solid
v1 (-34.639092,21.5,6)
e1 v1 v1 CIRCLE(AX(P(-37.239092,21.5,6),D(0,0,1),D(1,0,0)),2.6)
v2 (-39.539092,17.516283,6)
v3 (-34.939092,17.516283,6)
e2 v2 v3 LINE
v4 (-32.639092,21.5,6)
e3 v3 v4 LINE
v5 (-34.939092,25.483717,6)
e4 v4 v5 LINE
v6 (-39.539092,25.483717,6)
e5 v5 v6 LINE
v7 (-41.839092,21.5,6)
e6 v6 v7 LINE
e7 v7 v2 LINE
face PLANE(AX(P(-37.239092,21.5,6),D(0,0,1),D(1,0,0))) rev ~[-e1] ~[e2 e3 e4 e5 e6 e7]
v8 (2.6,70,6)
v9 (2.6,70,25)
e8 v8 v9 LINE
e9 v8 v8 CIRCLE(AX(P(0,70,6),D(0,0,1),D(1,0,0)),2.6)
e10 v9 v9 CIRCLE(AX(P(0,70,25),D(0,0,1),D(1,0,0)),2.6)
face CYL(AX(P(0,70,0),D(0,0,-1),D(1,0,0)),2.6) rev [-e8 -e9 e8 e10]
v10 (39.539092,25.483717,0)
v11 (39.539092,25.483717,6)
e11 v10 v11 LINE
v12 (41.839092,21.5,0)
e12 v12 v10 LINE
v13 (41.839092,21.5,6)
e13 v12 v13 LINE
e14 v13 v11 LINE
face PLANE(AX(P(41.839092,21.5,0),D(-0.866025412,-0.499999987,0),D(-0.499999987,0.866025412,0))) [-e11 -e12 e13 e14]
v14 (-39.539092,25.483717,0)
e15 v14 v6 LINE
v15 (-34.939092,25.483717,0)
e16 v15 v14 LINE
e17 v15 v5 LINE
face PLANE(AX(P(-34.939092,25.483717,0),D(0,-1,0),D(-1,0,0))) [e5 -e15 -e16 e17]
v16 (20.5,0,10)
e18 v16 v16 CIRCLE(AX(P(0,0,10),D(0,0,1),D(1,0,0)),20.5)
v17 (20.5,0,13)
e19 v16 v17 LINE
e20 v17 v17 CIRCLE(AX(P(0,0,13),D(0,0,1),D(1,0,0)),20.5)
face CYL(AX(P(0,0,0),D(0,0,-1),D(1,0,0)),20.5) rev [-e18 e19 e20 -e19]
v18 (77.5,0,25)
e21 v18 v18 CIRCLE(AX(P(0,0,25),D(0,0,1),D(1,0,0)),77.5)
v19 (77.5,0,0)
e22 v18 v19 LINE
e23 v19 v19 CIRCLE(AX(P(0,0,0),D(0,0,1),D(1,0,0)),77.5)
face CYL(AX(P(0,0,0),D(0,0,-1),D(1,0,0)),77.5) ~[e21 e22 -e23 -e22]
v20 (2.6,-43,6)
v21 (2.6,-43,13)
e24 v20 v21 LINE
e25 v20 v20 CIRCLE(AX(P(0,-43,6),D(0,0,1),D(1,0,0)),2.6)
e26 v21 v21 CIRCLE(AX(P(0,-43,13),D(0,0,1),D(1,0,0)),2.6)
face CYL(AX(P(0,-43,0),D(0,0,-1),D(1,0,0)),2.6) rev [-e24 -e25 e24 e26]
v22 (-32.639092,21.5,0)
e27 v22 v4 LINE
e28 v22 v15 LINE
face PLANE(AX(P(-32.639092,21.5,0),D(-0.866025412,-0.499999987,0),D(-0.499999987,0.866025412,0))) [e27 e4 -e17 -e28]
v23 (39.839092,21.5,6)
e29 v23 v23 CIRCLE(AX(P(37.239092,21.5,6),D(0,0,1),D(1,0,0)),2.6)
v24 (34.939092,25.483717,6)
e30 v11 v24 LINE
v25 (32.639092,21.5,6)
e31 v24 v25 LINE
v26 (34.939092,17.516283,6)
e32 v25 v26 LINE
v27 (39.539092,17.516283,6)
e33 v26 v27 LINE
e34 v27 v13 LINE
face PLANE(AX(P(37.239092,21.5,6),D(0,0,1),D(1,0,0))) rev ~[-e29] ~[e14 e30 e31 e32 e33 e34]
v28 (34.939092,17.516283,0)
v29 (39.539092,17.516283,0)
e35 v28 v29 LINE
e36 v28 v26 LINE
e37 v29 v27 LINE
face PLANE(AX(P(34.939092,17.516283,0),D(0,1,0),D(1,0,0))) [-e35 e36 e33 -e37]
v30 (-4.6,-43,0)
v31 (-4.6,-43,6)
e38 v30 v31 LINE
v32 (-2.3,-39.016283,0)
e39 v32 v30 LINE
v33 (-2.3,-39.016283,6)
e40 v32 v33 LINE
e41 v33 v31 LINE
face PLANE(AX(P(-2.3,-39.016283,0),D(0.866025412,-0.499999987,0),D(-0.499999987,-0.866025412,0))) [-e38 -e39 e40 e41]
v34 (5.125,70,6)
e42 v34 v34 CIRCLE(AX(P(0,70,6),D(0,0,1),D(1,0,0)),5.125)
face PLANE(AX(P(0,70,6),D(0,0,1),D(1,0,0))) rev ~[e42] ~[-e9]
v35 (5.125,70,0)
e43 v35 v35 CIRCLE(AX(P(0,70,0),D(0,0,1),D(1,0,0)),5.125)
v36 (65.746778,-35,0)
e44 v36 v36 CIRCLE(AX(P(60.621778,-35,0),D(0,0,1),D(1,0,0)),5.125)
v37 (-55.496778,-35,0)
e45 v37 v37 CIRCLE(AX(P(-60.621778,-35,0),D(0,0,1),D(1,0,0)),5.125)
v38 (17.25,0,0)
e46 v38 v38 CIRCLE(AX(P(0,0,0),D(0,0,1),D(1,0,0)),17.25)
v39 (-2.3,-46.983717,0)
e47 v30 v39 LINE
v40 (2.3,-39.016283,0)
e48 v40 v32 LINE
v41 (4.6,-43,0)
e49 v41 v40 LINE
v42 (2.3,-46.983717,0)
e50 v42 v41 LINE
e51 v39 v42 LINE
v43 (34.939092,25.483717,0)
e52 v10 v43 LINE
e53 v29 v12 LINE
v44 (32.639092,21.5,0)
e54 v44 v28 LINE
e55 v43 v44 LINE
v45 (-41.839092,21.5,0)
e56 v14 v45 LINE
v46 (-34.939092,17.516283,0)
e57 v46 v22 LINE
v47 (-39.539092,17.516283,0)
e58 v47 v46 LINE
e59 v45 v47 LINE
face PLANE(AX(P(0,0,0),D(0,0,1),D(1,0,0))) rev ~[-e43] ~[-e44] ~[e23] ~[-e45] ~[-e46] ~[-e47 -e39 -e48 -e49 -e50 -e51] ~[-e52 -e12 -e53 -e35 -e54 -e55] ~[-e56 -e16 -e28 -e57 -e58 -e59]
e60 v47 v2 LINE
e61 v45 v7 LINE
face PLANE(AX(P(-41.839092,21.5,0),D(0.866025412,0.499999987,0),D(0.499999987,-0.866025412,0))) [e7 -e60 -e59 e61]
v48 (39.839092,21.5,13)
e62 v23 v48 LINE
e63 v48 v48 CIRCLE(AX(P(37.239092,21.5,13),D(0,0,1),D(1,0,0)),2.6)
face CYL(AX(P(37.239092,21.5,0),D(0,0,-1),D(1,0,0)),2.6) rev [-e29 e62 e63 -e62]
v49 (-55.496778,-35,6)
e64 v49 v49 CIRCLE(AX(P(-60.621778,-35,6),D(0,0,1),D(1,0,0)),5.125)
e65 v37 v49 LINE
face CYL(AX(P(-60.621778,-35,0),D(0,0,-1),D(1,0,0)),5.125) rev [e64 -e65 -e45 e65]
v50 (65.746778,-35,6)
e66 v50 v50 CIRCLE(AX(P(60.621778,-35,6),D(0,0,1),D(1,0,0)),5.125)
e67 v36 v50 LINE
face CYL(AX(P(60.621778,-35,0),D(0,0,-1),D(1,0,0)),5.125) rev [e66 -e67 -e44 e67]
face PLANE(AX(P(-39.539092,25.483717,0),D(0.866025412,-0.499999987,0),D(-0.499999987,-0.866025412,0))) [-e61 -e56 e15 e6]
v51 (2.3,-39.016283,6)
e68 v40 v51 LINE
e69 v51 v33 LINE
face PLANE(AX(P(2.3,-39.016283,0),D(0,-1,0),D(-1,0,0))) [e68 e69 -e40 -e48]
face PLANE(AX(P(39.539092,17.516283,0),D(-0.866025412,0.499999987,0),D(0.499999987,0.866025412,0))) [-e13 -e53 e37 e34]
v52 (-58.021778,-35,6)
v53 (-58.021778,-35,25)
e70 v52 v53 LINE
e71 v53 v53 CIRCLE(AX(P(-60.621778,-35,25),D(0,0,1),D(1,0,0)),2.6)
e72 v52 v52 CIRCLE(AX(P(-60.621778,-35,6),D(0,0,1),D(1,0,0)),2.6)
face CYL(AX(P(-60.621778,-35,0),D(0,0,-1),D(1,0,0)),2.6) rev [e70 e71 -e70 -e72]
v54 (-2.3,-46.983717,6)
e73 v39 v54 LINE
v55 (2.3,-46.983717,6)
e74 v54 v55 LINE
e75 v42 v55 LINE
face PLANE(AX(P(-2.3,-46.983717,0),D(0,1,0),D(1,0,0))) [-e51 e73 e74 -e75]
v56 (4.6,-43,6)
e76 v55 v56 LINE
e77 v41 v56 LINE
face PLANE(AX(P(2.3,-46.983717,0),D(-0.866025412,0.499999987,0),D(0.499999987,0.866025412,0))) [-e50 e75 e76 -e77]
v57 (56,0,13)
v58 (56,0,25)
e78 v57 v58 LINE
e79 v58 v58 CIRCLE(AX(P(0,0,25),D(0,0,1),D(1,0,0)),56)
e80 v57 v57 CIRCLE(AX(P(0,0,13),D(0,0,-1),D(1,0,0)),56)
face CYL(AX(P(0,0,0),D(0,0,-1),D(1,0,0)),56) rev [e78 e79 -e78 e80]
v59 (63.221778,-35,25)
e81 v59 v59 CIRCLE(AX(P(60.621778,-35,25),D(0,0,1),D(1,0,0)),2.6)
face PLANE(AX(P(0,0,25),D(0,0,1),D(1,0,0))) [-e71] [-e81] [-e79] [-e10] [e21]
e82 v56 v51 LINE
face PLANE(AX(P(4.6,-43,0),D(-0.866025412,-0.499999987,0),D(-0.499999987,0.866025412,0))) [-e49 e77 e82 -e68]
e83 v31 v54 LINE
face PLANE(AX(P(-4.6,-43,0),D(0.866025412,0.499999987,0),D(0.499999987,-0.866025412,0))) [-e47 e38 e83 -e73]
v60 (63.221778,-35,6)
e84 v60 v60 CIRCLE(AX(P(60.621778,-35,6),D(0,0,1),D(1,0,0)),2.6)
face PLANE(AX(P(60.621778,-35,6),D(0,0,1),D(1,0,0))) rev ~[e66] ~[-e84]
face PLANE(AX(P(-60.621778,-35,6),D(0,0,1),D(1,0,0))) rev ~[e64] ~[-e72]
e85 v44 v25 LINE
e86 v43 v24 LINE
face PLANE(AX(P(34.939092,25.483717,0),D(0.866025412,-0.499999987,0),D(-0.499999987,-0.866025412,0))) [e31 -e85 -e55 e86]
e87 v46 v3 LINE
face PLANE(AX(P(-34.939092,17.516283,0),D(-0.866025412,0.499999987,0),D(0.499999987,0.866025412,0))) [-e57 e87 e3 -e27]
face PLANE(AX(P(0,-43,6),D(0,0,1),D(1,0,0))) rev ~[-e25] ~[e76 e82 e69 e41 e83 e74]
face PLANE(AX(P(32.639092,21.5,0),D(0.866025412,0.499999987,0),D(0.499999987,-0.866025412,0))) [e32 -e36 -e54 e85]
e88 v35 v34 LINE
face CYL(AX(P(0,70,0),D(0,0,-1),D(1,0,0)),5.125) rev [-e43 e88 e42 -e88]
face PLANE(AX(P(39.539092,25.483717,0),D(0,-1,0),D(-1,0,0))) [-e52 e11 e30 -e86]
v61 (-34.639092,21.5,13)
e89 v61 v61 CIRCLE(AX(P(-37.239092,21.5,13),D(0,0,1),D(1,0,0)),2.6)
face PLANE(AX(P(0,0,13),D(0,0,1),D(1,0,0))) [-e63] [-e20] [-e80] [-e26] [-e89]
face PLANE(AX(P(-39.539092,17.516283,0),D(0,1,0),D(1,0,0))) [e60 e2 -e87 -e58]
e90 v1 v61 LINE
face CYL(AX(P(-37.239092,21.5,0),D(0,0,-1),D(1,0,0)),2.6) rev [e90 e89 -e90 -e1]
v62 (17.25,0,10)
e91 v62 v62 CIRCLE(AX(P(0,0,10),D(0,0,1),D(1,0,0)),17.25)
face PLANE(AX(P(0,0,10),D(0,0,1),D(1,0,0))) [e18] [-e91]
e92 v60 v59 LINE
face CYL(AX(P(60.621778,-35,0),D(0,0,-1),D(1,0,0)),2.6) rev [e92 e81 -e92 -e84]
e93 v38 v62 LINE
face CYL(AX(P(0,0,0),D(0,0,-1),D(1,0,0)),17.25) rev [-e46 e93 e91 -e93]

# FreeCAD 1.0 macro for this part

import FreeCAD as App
import Part
import Sketcher
from FreeCAD import Vector
Q = App.Units.Quantity


def add_polygon(sketch, points):
    """Adds a closed chain of lines whose ends are joined by coincident constraints."""
    first, n = sketch.GeometryCount, len(points)
    for a, b in zip(points, points[1:] + points[:1]):
        sketch.addGeometry(Part.LineSegment(App.Vector(*a, 0), App.Vector(*b, 0)), False)
    for i in range(n):
        sketch.addConstraint(Sketcher.Constraint("Coincident", first + i, 2, first + (i + 1) % n, 1))

doc = App.newDocument("Part")
params = doc.addObject("Spreadsheet::Sheet", "Params")
for row, (alias, value) in enumerate([
    ("sketch1_diameter", "155 mm"),
    ("sketch1_diameter2", "41 mm"),
    ("sketch1_diameter3", "5.2 mm"),
    ("pad1_length", "13 mm"),
    ("sketch2_diameter", "155 mm"),
    ("sketch2_diameter2", "112 mm"),
    ("sketch2_diameter3", "5.2 mm"),
    ("pad2_length", "25 mm"),
    ("sketch3_diameter", "41 mm"),
    ("sketch3_diameter2", "34.5 mm"),
    ("pad3_length", "10 mm"),
    ("sketch4_diameter", "5.2 mm"),
    ("sketch4_diameter2", "10.25 mm"),
    ("pocket1_length", "6 mm"),
    ("sketch5_diameter", "5.2 mm"),
    ("sketch5_width", "4.6 mm"),
    ("sketch5_length", "4.6 mm"),
    ("pocket2_length", "6 mm"),
], start=1):
    params.set(f"A{row}", alias)
    params.set(f"B{row}", "=" + value)
    params.setAlias(f"B{row}", alias)

body = doc.addObject("PartDesign::Body", "Body")

# Sketch on XY plane
sketch1 = body.newObject("Sketcher::SketchObject", "Sketch")
sketch1.AttachmentSupport = (doc.getObject("XY_Plane"), [""])
sketch1.MapMode = "FlatFace"
sketch1.addGeometry([
    Part.Circle(Vector(0, 0, 0), Vector(0, 0, 1), 77.5),  # 0
    Part.Circle(Vector(-60.6, -35, 0), Vector(0, 0, 1), 2.6),  # 1
    Part.Circle(Vector(0, -43, 0), Vector(0, 0, 1), 2.6),  # 2
    Part.Circle(Vector(60.6, -35, 0), Vector(0, 0, 1), 2.6),  # 3
    Part.Circle(Vector(0, 0, 0), Vector(0, 0, 1), 20.5),  # 4
    Part.Circle(Vector(-37.2, 21.5, 0), Vector(0, 0, 1), 2.6),  # 5
    Part.Circle(Vector(37.2, 21.5, 0), Vector(0, 0, 1), 2.6),  # 6
    Part.Circle(Vector(0, 70, 0), Vector(0, 0, 1), 2.6),  # 7
], False)
sketch1.addConstraint([
    Sketcher.Constraint("Coincident", 0, 3, -1, 1),
    Sketcher.Constraint("Coincident", 4, 3, -1, 1),
    Sketcher.Constraint("Equal", 1, 2),
    Sketcher.Constraint("Equal", 2, 3),
    Sketcher.Constraint("Equal", 3, 5),
    Sketcher.Constraint("Equal", 5, 6),
    Sketcher.Constraint("Equal", 6, 7),
    Sketcher.Constraint("Symmetric", 1, 3, 3, 3, -2),
    Sketcher.Constraint("Symmetric", 5, 3, 6, 3, -2),
    Sketcher.Constraint("PointOnObject", 2, 3, -2),
    Sketcher.Constraint("PointOnObject", 7, 3, -2),
    Sketcher.Constraint("Diameter", 0, Q("155 mm")),
    Sketcher.Constraint("Diameter", 4, Q("41 mm")),
    Sketcher.Constraint("Diameter", 1, Q("5.2 mm")),
    Sketcher.Constraint("DistanceY", 1, 3, -1, 1, Q("35 mm")),
    Sketcher.Constraint("DistanceY", 2, 3, -1, 1, Q("43 mm")),
    Sketcher.Constraint("DistanceY", -1, 1, 7, 3, Q("70 mm")),
    Sketcher.Constraint("DistanceY", -1, 1, 5, 3, Q("21.5 mm")),
    Sketcher.Constraint("DistanceX", 5, 3, 3, 3, Q("97.86087 mm")),
    Sketcher.Constraint("DistanceX", 1, 3, -1, 1, Q("60.621778 mm")),
])
sketch1.setExpression("Constraints[11]", "Params.sketch1_diameter")
sketch1.setExpression("Constraints[12]", "Params.sketch1_diameter2")
sketch1.setExpression("Constraints[13]", "Params.sketch1_diameter3")
pad1 = body.newObject("PartDesign::Pad", "Pad")
pad1.Profile = sketch1
pad1.setExpression("Length", "Params.pad1_length")

# Sketch on XY plane
sketch2 = body.newObject("Sketcher::SketchObject", "Sketch001")
sketch2.AttachmentSupport = (doc.getObject("XY_Plane"), [""])
sketch2.MapMode = "FlatFace"
sketch2.addGeometry([
    Part.Circle(Vector(0, 0, 0), Vector(0, 0, 1), 77.5),  # 0
    Part.Circle(Vector(-60.6, -35, 0), Vector(0, 0, 1), 2.6),  # 1
    Part.Circle(Vector(60.6, -35, 0), Vector(0, 0, 1), 2.6),  # 2
    Part.Circle(Vector(0, 0, 0), Vector(0, 0, 1), 56),  # 3
    Part.Circle(Vector(0, 70, 0), Vector(0, 0, 1), 2.6),  # 4
], False)
sketch2.addConstraint([
    Sketcher.Constraint("Coincident", 0, 3, -1, 1),
    Sketcher.Constraint("Coincident", 3, 3, -1, 1),
    Sketcher.Constraint("Equal", 1, 2),
    Sketcher.Constraint("Equal", 2, 4),
    Sketcher.Constraint("Symmetric", 1, 3, 2, 3, -2),
    Sketcher.Constraint("PointOnObject", 4, 3, -2),
    Sketcher.Constraint("Diameter", 0, Q("155 mm")),
    Sketcher.Constraint("Diameter", 3, Q("112 mm")),
    Sketcher.Constraint("Diameter", 1, Q("5.2 mm")),
    Sketcher.Constraint("DistanceY", 1, 3, -1, 1, Q("35 mm")),
    Sketcher.Constraint("DistanceY", -1, 1, 4, 3, Q("70 mm")),
    Sketcher.Constraint("DistanceX", 1, 3, -1, 1, Q("60.621778 mm")),
])
sketch2.setExpression("Constraints[6]", "Params.sketch2_diameter")
sketch2.setExpression("Constraints[7]", "Params.sketch2_diameter2")
sketch2.setExpression("Constraints[8]", "Params.sketch2_diameter3")
pad2 = body.newObject("PartDesign::Pad", "Pad001")
pad2.Profile = sketch2
pad2.setExpression("Length", "Params.pad2_length")

# Sketch on XY plane
sketch3 = body.newObject("Sketcher::SketchObject", "Sketch002")
sketch3.AttachmentSupport = (doc.getObject("XY_Plane"), [""])
sketch3.MapMode = "FlatFace"
sketch3.addGeometry([
    Part.Circle(Vector(0, 0, 0), Vector(0, 0, 1), 20),
    Part.Circle(Vector(0, 0, 0), Vector(0, 0, 1), 17),
], False)
sketch3.addConstraint([
    Sketcher.Constraint("Coincident", 0, 3, -1, 1),
    Sketcher.Constraint("Coincident", 1, 3, -1, 1),
    Sketcher.Constraint("Diameter", 0, Q("41 mm")),
    Sketcher.Constraint("Diameter", 1, Q("34.5 mm")),
])
sketch3.setExpression("Constraints[2]", "Params.sketch3_diameter")
sketch3.setExpression("Constraints[3]", "Params.sketch3_diameter2")
pad3 = body.newObject("PartDesign::Pad", "Pad002")
pad3.Profile = sketch3
pad3.setExpression("Length", "Params.pad3_length")

# Sketch on XY plane
sketch4 = body.newObject("Sketcher::SketchObject", "Sketch003")
sketch4.AttachmentSupport = (doc.getObject("XY_Plane"), [""])
sketch4.MapMode = "FlatFace"
sketch4.addGeometry([
    Part.Circle(Vector(0, 70, 0), Vector(0, 0, 1), 5.1),  # 0
    Part.Circle(Vector(0, 70, 0), Vector(0, 0, 1), 2.6),  # 1
    Part.Circle(Vector(-60.6, -35, 0), Vector(0, 0, 1), 5.1),  # 2
    Part.Circle(Vector(-60.6, -35, 0), Vector(0, 0, 1), 2.6),  # 3
    Part.Circle(Vector(60.6, -35, 0), Vector(0, 0, 1), 5.1),  # 4
    Part.Circle(Vector(60.6, -35, 0), Vector(0, 0, 1), 2.6),  # 5
], False)
sketch4.addConstraint([
    Sketcher.Constraint("Coincident", 1, 3, 0, 3),
    Sketcher.Constraint("Coincident", 3, 3, 2, 3),
    Sketcher.Constraint("Coincident", 5, 3, 4, 3),
    Sketcher.Constraint("Equal", 0, 2),
    Sketcher.Constraint("Equal", 1, 3),
    Sketcher.Constraint("Equal", 2, 4),
    Sketcher.Constraint("Equal", 3, 5),
    Sketcher.Constraint("Symmetric", 2, 3, 4, 3, -2),
    Sketcher.Constraint("PointOnObject", 0, 3, -2),
    Sketcher.Constraint("Diameter", 1, Q("5.2 mm")),
    Sketcher.Constraint("Diameter", 0, Q("10.25 mm")),
    Sketcher.Constraint("DistanceY", -1, 1, 0, 3, Q("70 mm")),
    Sketcher.Constraint("DistanceY", 2, 3, -1, 1, Q("35 mm")),
    Sketcher.Constraint("DistanceX", 2, 3, -1, 1, Q("60.621778 mm")),
])
sketch4.setExpression("Constraints[9]", "Params.sketch4_diameter")
sketch4.setExpression("Constraints[10]", "Params.sketch4_diameter2")
pocket1 = body.newObject("PartDesign::Pocket", "Pocket")
pocket1.Profile = sketch4
pocket1.setExpression("Length", "Params.pocket1_length")
pocket1.Reversed = True

# Sketch on XY plane
sketch5 = body.newObject("Sketcher::SketchObject", "Sketch004")
sketch5.AttachmentSupport = (doc.getObject("XY_Plane"), [""])
sketch5.MapMode = "FlatFace"
add_polygon(sketch5, [(34.9, 25.5), (32.6, 21.5), (34.9, 17.5), (39.5, 17.5), (41.8, 21.5), (39.5, 25.5)])  # lines 0-5
sketch5.addGeometry(Part.Circle(Vector(37.2, 21.5, 0), Vector(0, 0, 1), 2.6), False)  # 6
add_polygon(sketch5, [(-34.9, 17.5), (-32.6, 21.5), (-34.9, 25.5), (-39.5, 25.5), (-41.8, 21.5), (-39.5, 17.5)])  # lines 7-12
sketch5.addGeometry(Part.Circle(Vector(-37.2, 21.5, 0), Vector(0, 0, 1), 2.6), False)  # 13
add_polygon(sketch5, [(2.3, -39), (-2.3, -39), (-4.6, -43), (-2.3, -47), (2.3, -47), (4.6, -43)])  # lines 14-19
sketch5.addGeometry(Part.Circle(Vector(0, -43, 0), Vector(0, 0, 1), 2.6), False)  # 20
sketch5.addConstraint([
    Sketcher.Constraint("Horizontal", 2),
    Sketcher.Constraint("Horizontal", 5),
    Sketcher.Constraint("Horizontal", 9),
    Sketcher.Constraint("Horizontal", 12),
    Sketcher.Constraint("Horizontal", 14),
    Sketcher.Constraint("Horizontal", 17),
    Sketcher.Constraint("Equal", 6, 13),
    Sketcher.Constraint("Equal", 13, 20),
    Sketcher.Constraint("Symmetric", 6, 3, 13, 3, -2),
    Sketcher.Constraint("Symmetric", 0, 2, 7, 2, -2),
    Sketcher.Constraint("Symmetric", 5, 2, 8, 2, -2),
    Sketcher.Constraint("Symmetric", 3, 2, 10, 2, -2),
    Sketcher.Constraint("Symmetric", 2, 2, 11, 2, -2),
    Sketcher.Constraint("Symmetric", 15, 2, 18, 2, -2),
    Sketcher.Constraint("PointOnObject", 20, 3, -2),
    Sketcher.Constraint("Parallel", 0, 3),
    Sketcher.Constraint("Parallel", 1, 4),
    Sketcher.Constraint("Parallel", 3, 7),
    Sketcher.Constraint("Parallel", 4, 8),
    Sketcher.Constraint("Parallel", 7, 10),
    Sketcher.Constraint("Parallel", 10, 15),
    Sketcher.Constraint("Parallel", 11, 16),
    Sketcher.Constraint("Parallel", 15, 18),
    Sketcher.Constraint("Parallel", 16, 19),
    Sketcher.Constraint("Horizontal", 13, 3, 0, 2),
    Sketcher.Constraint("Horizontal", 0, 2, 3, 2),
    Sketcher.Constraint("Horizontal", 20, 3, 15, 2),
    Sketcher.Constraint("Vertical", 2, 2, 4, 2),
    Sketcher.Constraint("Vertical", 14, 2, 16, 2),
    Sketcher.Constraint("Equal", 12, 14),
    Sketcher.Constraint("Equal", 11, 15),
    Sketcher.Constraint("Diameter", 6, Q("5.2 mm")),
    Sketcher.Constraint("Angle", 0, Q("-119.999999 deg")),
    Sketcher.Constraint("DistanceX", 2, 1, 2, 2, Q("4.6 mm")),
    Sketcher.Constraint("DistanceY", 20, 3, -1, 1, Q("43 mm")),
    Sketcher.Constraint("Distance", 0, Q("4.6 mm")),
    Sketcher.Constraint("DistanceY", -1, 1, 6, 3, Q("21.5 mm")),
    Sketcher.Constraint("DistanceX", 0, 2, 6, 3, Q("4.6 mm")),
    Sketcher.Constraint("DistanceX", -1, 1, 0, 2, Q("32.639092 mm")),
])
sketch5.setExpression("Constraints[49]", "Params.sketch5_diameter")
sketch5.setExpression("Constraints[51]", "Params.sketch5_width")
sketch5.setExpression("Constraints[53]", "Params.sketch5_length")
pocket2 = body.newObject("PartDesign::Pocket", "Pocket001")
pocket2.Profile = sketch5
pocket2.setExpression("Length", "Params.pocket2_length")
pocket2.Reversed = True

doc.recompute()
